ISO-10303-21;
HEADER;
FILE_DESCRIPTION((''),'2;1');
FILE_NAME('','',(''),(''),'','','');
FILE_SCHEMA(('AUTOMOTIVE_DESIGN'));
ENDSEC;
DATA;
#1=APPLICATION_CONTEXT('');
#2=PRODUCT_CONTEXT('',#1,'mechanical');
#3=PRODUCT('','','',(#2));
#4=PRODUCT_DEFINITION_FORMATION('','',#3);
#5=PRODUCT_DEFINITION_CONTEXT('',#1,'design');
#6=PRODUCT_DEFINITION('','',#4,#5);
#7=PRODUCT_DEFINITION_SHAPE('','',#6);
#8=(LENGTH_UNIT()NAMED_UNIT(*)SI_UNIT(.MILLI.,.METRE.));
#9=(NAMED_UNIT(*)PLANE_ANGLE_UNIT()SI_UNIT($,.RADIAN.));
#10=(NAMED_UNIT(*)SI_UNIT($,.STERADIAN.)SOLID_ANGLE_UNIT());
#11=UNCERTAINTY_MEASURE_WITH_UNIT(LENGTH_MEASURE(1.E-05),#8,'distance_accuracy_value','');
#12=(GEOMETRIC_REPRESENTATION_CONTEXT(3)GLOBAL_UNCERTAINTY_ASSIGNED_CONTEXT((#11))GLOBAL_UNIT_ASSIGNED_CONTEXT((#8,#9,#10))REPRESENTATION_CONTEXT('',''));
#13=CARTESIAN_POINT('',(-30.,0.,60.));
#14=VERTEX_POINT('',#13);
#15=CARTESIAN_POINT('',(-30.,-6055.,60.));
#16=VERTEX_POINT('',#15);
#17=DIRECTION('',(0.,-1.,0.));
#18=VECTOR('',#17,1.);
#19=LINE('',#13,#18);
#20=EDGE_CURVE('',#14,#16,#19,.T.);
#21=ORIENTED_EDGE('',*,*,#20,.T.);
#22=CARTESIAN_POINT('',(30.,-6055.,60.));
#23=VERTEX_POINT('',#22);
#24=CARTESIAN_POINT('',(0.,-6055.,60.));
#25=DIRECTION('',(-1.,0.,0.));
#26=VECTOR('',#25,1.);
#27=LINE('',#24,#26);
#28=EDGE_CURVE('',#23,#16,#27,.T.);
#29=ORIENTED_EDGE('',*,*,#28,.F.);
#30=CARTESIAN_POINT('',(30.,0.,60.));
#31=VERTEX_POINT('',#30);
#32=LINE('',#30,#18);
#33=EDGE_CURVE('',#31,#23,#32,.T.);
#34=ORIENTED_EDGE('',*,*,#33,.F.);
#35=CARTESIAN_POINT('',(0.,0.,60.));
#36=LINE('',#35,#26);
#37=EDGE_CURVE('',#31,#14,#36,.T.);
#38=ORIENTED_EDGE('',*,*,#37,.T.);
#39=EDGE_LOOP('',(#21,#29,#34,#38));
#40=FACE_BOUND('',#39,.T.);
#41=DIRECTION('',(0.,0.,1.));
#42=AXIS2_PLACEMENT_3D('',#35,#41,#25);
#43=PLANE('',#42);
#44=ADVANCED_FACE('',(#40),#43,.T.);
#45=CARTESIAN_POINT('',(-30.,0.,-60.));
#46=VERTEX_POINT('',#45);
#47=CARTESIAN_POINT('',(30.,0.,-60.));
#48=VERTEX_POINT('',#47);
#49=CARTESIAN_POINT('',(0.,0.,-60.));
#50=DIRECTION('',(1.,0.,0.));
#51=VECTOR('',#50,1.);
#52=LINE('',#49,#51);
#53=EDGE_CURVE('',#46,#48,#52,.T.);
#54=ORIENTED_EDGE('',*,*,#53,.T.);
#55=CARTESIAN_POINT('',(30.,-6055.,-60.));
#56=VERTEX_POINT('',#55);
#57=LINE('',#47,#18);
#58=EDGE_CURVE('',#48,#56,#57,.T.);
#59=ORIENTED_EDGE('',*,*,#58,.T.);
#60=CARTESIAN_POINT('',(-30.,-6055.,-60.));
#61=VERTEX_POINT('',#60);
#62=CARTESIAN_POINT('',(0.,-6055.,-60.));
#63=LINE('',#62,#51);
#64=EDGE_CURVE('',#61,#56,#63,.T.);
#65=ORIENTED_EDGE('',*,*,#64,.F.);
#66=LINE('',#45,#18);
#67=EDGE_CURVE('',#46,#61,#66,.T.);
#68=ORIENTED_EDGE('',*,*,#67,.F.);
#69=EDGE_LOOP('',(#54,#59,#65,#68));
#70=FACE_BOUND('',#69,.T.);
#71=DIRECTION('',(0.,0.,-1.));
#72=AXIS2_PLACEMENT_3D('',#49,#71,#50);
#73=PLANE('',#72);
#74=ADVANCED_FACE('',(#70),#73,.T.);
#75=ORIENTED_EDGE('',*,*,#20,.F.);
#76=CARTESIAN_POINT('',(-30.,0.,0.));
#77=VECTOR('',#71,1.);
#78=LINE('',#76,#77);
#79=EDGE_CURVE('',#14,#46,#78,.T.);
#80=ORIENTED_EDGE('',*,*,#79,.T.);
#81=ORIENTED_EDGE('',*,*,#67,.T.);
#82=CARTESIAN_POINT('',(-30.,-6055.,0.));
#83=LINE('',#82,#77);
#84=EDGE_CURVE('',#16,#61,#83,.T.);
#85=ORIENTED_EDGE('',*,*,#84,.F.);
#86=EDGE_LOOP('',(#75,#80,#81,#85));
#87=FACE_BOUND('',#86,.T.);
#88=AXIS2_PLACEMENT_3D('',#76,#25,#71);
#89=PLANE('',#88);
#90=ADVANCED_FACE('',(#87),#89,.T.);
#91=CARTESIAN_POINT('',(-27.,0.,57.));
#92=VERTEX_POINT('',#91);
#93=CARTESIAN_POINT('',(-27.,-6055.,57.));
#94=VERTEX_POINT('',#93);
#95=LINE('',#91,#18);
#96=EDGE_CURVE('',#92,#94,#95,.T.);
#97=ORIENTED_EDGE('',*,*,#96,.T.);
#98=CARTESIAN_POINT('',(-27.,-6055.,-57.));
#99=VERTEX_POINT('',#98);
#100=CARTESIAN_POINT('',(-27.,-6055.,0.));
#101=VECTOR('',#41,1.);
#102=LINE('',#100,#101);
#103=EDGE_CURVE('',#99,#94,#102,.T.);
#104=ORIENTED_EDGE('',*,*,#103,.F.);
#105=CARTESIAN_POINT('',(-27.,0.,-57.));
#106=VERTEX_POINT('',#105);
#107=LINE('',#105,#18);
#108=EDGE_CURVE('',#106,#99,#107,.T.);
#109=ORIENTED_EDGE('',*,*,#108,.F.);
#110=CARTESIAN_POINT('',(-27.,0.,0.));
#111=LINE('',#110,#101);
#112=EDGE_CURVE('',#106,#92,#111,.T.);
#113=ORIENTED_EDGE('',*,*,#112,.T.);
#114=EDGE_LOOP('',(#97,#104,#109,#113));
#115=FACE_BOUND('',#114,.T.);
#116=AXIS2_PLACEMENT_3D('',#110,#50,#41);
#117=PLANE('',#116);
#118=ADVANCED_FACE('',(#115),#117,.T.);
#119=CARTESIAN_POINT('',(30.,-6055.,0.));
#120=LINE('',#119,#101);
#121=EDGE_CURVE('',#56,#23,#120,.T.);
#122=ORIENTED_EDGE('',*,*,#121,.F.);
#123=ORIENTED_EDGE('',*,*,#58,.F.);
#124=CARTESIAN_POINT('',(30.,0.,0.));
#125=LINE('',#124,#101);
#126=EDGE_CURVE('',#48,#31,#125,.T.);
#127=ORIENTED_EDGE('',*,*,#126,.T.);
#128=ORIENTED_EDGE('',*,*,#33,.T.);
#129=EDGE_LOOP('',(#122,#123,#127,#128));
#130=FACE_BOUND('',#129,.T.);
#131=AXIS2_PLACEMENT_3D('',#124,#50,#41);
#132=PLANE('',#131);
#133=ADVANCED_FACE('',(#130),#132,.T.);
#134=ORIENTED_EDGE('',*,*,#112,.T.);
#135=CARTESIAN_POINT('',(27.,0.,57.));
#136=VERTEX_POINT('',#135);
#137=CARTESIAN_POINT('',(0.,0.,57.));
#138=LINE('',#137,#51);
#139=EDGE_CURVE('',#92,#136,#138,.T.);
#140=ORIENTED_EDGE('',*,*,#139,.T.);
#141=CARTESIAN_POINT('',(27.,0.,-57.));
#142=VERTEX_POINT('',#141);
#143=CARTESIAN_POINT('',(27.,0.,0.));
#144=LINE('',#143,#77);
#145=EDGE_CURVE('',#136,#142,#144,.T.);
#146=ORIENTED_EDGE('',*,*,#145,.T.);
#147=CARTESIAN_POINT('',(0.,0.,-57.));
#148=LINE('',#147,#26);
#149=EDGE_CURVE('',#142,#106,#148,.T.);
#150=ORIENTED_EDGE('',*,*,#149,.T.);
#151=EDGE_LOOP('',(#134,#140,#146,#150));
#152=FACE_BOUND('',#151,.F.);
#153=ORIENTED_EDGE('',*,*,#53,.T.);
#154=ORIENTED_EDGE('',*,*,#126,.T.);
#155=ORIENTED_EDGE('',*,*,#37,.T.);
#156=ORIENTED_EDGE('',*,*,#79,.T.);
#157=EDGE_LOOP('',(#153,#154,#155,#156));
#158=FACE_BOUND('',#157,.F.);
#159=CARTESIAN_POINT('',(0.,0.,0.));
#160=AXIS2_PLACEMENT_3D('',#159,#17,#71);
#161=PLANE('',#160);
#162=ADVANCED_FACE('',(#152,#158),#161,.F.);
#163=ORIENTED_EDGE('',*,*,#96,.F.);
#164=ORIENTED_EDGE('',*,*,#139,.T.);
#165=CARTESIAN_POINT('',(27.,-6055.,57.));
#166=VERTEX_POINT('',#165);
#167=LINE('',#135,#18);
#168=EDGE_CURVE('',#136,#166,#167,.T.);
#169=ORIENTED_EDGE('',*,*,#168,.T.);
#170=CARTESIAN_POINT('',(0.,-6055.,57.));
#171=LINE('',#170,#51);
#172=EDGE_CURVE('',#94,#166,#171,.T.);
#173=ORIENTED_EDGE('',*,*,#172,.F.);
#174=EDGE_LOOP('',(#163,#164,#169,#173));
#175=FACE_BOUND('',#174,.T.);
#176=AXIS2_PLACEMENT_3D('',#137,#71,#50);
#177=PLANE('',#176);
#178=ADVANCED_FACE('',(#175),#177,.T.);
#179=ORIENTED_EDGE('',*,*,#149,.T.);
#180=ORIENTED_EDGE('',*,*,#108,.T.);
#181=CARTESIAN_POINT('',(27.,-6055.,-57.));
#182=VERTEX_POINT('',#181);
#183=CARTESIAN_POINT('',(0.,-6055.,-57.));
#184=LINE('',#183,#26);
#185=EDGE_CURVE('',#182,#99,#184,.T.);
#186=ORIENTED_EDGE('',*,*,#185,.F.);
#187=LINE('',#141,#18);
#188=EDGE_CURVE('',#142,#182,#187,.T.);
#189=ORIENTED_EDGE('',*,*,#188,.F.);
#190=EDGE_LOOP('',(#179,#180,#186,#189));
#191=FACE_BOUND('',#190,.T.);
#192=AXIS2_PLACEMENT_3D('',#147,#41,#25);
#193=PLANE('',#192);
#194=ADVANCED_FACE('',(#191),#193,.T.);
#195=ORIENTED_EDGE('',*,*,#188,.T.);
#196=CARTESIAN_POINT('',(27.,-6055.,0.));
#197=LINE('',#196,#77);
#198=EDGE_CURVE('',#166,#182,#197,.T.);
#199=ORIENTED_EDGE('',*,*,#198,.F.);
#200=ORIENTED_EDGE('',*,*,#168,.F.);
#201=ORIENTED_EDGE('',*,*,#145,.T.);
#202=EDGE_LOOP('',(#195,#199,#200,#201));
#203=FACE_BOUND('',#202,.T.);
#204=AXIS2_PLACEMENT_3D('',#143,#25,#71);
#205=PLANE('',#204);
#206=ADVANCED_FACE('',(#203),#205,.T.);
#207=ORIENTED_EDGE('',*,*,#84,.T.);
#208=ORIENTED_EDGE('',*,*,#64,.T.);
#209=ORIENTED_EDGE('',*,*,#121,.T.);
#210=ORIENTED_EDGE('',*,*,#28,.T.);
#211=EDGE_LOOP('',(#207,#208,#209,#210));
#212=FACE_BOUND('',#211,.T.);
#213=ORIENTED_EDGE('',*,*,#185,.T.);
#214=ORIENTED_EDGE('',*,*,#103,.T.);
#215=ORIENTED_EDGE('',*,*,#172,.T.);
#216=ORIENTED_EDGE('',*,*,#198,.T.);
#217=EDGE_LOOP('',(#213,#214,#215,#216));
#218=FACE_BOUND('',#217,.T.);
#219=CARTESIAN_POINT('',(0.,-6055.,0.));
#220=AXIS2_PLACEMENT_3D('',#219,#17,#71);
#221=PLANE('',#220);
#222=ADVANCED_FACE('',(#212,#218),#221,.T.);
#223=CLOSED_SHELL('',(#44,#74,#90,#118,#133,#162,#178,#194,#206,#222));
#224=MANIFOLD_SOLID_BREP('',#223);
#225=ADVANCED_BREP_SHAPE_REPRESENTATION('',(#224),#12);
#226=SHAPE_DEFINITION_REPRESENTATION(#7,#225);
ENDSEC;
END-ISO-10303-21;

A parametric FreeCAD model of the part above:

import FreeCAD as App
import Part
import Sketcher

V = App.Vector
Q = App.Units.Quantity


def add_polygon(sketch, points):
    """Adds a closed chain of lines whose ends are joined by coincident constraints."""
    first, n = sketch.GeometryCount, len(points)
    for a, b in zip(points, points[1:] + points[:1]):
        sketch.addGeometry(Part.LineSegment(App.Vector(*a, 0), App.Vector(*b, 0)), False)
    for i in range(n):
        sketch.addConstraint(Sketcher.Constraint("Coincident", first + i, 2, first + (i + 1) % n, 1))

doc = App.newDocument("Part")
params = doc.addObject("Spreadsheet::Sheet", "Params")
for row, (alias, value) in enumerate([
    ("sketch1_width", "60 mm"),
    ("sketch1_width2", "54 mm"),
    ("sketch1_height", "120 mm"),
    ("sketch1_height2", "114 mm"),
    ("sketch2_height", "6055 mm"),
], start=1):
    params.set(f"A{row}", alias)
    params.set(f"B{row}", "=" + value)
    params.setAlias(f"B{row}", alias)

body = doc.addObject("PartDesign::Body", "Body")

# Sketch on XZ plane
sketch1 = doc.addObject("Sketcher::SketchObject", "Sketch")
body.addObject(sketch1)
sketch1.AttachmentSupport = (doc.XZ_Plane, [""])
sketch1.MapMode = "FlatFace"
add_polygon(sketch1, [(-30, 60), (-30, -60), (30, -60), (30, 60)])  # lines 0-3
add_polygon(sketch1, [(27, -57), (-27, -57), (-27, 57), (27, 57)])  # lines 4-7
sketch1.addConstraint([
    Sketcher.Constraint("Vertical", 0),
    Sketcher.Constraint("Horizontal", 1),
    Sketcher.Constraint("Vertical", 2),
    Sketcher.Constraint("Horizontal", 3),
    Sketcher.Constraint("Horizontal", 4),
    Sketcher.Constraint("Vertical", 5),
    Sketcher.Constraint("Horizontal", 6),
    Sketcher.Constraint("Vertical", 7),
    Sketcher.Constraint("Symmetric", 0, 2, 2, 2, -1, 1),
    Sketcher.Constraint("Symmetric", 4, 2, 6, 2, -1, 1),
    Sketcher.Constraint("DistanceX", 1, 1, 1, 2, Q("60 mm")),
    Sketcher.Constraint("DistanceX", 4, 2, 4, 1, Q("54 mm")),
    Sketcher.Constraint("DistanceY", 0, 2, 0, 1, Q("120 mm")),
    Sketcher.Constraint("DistanceY", 5, 1, 5, 2, Q("114 mm")),
])
sketch1.setExpression("Constraints[18]", "Params.sketch1_width")
sketch1.setExpression("Constraints[19]", "Params.sketch1_width2")
sketch1.setExpression("Constraints[20]", "Params.sketch1_height")
sketch1.setExpression("Constraints[21]", "Params.sketch1_height2")

# Sketch on XY plane
sketch2 = doc.addObject("Sketcher::SketchObject", "Sketch001")
body.addObject(sketch2)
sketch2.AttachmentSupport = (doc.XY_Plane, [""])
sketch2.MapMode = "FlatFace"
sketch2.addGeometry(Part.LineSegment(V(0, 0, 0), V(0, -6055, 0)), False)
sketch2.addConstraint([
    Sketcher.Constraint("Vertical", 0),
    Sketcher.Constraint("Coincident", 0, 1, -1, 1),
    Sketcher.Constraint("DistanceY", 0, 2, 0, 1, Q("6055 mm")),
])
sketch2.setExpression("Constraints[2]", "Params.sketch2_height")
doc.recompute()

additivepipe = doc.addObject("PartDesign::AdditivePipe", "AdditivePipe")
body.addObject(additivepipe)
additivepipe.Profile = sketch1
additivepipe.Spine = (sketch2, ["Edge1"])

doc.recompute()
